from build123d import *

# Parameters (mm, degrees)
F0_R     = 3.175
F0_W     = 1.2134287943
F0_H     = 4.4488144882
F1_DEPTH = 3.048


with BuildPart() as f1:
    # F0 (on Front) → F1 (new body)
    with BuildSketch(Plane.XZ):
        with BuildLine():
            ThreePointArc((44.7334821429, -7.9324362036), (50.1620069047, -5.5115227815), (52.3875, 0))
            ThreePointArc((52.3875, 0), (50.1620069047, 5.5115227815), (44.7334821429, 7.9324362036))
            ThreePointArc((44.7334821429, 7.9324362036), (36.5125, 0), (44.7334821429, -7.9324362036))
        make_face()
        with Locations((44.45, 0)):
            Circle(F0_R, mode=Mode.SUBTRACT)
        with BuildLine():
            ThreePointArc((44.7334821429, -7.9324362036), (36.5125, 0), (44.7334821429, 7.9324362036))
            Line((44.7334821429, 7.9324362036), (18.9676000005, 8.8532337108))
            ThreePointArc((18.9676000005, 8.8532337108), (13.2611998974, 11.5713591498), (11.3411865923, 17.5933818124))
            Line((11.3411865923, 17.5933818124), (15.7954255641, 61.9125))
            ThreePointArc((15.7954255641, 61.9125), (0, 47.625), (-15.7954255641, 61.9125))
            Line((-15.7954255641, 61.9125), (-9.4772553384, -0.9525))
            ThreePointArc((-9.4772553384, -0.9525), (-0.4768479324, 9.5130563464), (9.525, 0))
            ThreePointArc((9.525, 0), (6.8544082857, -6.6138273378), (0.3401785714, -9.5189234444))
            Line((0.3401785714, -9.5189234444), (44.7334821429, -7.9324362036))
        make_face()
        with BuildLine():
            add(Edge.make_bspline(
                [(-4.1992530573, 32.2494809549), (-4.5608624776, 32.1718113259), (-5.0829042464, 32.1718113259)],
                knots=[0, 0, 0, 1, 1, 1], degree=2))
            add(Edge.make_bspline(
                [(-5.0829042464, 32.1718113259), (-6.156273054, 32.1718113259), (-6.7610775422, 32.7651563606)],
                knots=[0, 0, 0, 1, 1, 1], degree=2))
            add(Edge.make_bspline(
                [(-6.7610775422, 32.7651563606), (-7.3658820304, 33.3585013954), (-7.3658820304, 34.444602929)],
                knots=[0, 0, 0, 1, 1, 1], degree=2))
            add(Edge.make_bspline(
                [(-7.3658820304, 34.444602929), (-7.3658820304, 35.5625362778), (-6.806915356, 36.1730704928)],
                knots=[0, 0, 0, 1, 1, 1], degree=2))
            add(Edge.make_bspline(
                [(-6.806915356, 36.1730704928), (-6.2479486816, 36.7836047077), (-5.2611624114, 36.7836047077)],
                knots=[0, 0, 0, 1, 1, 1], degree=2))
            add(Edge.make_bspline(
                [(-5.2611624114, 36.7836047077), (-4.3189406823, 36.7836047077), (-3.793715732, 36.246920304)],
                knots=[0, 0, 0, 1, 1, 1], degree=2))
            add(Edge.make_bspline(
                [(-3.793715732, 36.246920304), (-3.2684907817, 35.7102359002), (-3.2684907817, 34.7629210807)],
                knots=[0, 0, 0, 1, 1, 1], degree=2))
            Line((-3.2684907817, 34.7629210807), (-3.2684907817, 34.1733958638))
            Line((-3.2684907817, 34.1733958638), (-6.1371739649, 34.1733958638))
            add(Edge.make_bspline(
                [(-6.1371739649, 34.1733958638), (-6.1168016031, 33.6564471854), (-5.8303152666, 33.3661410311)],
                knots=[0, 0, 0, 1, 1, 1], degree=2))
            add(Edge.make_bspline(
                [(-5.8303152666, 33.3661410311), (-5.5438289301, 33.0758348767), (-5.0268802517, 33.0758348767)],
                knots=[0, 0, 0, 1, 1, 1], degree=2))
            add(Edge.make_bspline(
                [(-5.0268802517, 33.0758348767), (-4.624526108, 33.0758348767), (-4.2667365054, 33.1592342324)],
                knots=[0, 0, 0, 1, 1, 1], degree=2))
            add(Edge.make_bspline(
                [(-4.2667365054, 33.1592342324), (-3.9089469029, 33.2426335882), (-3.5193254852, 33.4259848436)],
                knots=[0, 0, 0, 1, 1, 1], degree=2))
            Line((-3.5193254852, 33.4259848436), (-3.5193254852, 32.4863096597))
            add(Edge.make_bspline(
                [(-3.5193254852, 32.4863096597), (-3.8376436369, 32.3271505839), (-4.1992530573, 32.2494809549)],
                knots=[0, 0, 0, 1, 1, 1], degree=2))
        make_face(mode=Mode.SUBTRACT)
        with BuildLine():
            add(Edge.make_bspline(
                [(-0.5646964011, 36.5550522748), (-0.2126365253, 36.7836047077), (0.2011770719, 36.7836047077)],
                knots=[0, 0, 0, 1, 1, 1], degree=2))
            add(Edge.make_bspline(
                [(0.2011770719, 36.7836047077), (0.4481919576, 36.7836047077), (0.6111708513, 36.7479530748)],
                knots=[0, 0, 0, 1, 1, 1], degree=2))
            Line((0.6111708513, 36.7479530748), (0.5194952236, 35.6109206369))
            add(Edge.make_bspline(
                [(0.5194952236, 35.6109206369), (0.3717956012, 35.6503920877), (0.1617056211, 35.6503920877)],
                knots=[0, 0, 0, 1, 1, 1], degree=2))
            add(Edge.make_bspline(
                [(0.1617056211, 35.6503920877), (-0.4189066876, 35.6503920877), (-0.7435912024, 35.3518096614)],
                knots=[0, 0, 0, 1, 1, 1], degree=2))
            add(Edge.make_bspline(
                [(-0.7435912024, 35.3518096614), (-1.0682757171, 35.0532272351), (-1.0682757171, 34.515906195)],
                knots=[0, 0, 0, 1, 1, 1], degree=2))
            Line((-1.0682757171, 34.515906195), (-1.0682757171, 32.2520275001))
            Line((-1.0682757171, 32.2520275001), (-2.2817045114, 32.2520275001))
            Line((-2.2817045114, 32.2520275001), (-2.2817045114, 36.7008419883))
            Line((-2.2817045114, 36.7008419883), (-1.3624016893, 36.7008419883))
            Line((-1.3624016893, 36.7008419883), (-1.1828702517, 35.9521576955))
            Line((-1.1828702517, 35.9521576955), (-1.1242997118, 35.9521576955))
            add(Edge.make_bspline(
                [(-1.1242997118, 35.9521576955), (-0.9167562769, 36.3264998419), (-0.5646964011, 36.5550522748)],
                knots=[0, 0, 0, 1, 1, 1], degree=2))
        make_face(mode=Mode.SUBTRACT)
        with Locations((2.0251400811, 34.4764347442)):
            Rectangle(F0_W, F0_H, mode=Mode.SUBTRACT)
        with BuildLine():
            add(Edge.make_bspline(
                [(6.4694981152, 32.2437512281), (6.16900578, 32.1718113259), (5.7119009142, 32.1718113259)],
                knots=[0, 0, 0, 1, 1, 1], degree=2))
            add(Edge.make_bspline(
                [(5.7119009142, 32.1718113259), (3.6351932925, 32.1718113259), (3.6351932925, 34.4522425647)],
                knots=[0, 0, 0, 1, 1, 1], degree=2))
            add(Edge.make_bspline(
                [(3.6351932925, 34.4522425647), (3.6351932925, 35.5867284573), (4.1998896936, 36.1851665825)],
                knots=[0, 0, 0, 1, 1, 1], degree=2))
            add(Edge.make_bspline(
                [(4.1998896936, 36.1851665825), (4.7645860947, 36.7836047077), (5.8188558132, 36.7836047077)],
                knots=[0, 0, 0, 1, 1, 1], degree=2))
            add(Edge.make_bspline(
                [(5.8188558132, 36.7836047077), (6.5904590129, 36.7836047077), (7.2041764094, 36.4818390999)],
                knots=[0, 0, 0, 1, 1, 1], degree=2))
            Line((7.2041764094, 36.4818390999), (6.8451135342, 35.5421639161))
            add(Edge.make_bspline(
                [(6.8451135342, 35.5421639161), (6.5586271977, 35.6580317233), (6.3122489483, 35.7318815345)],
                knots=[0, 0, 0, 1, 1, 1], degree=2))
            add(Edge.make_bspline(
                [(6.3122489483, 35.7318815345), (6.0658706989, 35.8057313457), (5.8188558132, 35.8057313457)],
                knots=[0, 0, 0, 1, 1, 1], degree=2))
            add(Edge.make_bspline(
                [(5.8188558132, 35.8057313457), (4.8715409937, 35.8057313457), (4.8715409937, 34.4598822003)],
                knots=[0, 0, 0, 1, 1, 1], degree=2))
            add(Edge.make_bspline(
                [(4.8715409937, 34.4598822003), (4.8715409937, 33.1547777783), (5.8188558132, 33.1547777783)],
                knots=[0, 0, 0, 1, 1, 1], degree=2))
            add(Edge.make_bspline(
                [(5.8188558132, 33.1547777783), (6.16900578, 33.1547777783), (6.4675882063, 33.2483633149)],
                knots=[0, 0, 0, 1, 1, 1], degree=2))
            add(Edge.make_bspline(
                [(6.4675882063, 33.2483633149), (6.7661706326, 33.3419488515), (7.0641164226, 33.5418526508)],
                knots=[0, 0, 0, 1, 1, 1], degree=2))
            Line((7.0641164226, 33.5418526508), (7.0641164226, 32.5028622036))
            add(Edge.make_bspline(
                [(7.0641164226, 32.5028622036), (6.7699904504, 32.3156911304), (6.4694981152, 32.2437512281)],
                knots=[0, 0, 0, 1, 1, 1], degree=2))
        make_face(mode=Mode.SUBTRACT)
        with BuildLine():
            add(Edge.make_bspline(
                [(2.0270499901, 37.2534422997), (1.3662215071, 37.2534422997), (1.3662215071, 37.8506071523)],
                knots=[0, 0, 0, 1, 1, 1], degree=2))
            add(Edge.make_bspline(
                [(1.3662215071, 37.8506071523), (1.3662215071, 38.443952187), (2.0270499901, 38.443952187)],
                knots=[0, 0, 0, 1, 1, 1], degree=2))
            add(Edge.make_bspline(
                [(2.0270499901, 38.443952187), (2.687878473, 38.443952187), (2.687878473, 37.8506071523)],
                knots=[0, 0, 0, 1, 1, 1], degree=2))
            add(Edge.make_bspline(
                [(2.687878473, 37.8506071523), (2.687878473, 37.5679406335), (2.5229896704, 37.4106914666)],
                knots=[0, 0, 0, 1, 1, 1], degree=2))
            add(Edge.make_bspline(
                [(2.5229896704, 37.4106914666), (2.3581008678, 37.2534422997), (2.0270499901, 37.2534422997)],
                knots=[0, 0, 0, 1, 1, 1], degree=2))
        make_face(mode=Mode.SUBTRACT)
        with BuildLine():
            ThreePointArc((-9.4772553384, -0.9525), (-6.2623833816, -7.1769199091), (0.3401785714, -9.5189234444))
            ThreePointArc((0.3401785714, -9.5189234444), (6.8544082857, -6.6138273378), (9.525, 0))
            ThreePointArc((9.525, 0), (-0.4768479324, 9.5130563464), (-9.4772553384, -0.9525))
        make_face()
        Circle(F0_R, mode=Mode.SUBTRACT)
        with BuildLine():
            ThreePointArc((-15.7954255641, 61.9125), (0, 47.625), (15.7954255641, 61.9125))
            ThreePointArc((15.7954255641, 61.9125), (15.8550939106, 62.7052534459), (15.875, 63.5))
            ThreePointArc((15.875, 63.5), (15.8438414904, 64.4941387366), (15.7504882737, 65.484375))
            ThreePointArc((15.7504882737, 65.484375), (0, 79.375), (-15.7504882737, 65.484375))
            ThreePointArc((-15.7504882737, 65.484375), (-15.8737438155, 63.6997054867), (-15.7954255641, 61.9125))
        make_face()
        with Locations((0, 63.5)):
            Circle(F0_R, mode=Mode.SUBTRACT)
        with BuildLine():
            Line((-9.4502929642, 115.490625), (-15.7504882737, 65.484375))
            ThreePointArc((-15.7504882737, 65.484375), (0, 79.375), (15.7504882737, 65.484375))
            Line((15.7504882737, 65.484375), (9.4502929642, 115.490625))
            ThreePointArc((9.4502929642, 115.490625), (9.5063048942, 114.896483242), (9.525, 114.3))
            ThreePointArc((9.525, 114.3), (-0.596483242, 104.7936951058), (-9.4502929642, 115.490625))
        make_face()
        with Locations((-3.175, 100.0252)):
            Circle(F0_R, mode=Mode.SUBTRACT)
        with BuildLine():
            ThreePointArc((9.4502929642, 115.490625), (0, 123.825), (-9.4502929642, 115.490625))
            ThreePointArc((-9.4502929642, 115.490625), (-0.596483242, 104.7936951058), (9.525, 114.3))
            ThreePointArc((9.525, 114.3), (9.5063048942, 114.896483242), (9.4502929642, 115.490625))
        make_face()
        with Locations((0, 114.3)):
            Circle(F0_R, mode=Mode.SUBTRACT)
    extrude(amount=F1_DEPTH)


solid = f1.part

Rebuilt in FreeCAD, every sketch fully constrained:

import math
import FreeCAD as App
import Part
import Sketcher
Q = App.Units.Quantity


def add_polygon(sketch, points):
    """Adds a closed chain of lines whose ends are joined by coincident constraints."""
    first, n = sketch.GeometryCount, len(points)
    for a, b in zip(points, points[1:] + points[:1]):
        sketch.addGeometry(Part.LineSegment(App.Vector(*a, 0), App.Vector(*b, 0)), False)
    for i in range(n):
        sketch.addConstraint(Sketcher.Constraint("Coincident", first + i, 2, first + (i + 1) % n, 1))

doc = App.newDocument("Part")
body = doc.addObject("PartDesign::Body", "Body")

# Sketch on XZ plane
sketch1 = doc.addObject("Sketcher::SketchObject", "Sketch")
body.addObject(sketch1)
sketch1.AttachmentSupport = (doc.XZ_Plane, [""])
sketch1.MapMode = "FlatFace"
sketch1.addGeometry(Part.ArcOfCircle(Part.Circle(App.Vector(44.45, 0, 0), App.Vector(0, 0, 1), 7.9375), math.radians(-87.953287), math.radians(0)), False)  # 0
sketch1.addGeometry(Part.ArcOfCircle(Part.Circle(App.Vector(44.45, 0, 0), App.Vector(0, 0, 1), 7.9375), math.radians(0), math.radians(87.953287)), False)  # 1
sketch1.addGeometry(Part.LineSegment(App.Vector(44.733482, 7.932436, 0), App.Vector(18.9676, 8.853234, 0)), False)  # 2
sketch1.addGeometry(Part.ArcOfCircle(Part.Circle(App.Vector(19.251536, 16.798362, 0), App.Vector(0, 0, 1), 7.9502), math.radians(174.26083), math.radians(267.953287)), False)  # 3
sketch1.addGeometry(Part.LineSegment(App.Vector(11.341187, 17.593382, 0), App.Vector(15.795426, 61.9125, 0)), False)  # 4
sketch1.addGeometry(Part.ArcOfCircle(Part.Circle(App.Vector(0, 63.5, 0), App.Vector(0, 0, 1), 15.875), math.radians(-5.73917), math.radians(0)), False)  # 5
sketch1.addGeometry(Part.ArcOfCircle(Part.Circle(App.Vector(0, 63.5, 0), App.Vector(0, 0, 1), 15.875), math.radians(0), math.radians(7.180756)), False)  # 6
sketch1.addGeometry(Part.LineSegment(App.Vector(15.750488, 65.484375, 0), App.Vector(9.450293, 115.490625, 0)), False)  # 7
sketch1.addGeometry(Part.ArcOfCircle(Part.Circle(App.Vector(0, 114.3, 0), App.Vector(0, 0, 1), 9.525), math.radians(7.180756), math.radians(172.819244)), False)  # 8
sketch1.addGeometry(Part.LineSegment(App.Vector(-9.450293, 115.490625, 0), App.Vector(-15.750488, 65.484375, 0)), False)  # 9
sketch1.addGeometry(Part.ArcOfCircle(Part.Circle(App.Vector(0, 63.5, 0), App.Vector(0, 0, 1), 15.875), math.radians(172.819244), math.radians(185.73917)), False)  # 10
sketch1.addGeometry(Part.LineSegment(App.Vector(-15.795426, 61.9125, 0), App.Vector(-9.477255, -0.9525, 0)), False)  # 11
sketch1.addGeometry(Part.ArcOfCircle(Part.Circle(App.Vector(0, 0, 0), App.Vector(0, 0, 1), 9.525), math.radians(-174.26083), math.radians(-87.953287)), False)  # 12
sketch1.addGeometry(Part.LineSegment(App.Vector(0.340179, -9.518923, 0), App.Vector(44.733482, -7.932436, 0)), False)  # 13
sketch1.addGeometry(Part.Circle(App.Vector(0, 0, 0), App.Vector(0, 0, 1), 3.175), False)  # 14
sketch1.addGeometry(Part.BSplineCurve([App.Vector(-3.519325, 32.48631, 0), App.Vector(-3.837644, 32.327151, 0), App.Vector(-4.199253, 32.249481, 0)], [3, 3], [0, 1], False, 2, [1, 1, 1], False), False)  # 15
sketch1.addGeometry(Part.BSplineCurve([App.Vector(-4.199253, 32.249481, 0), App.Vector(-4.560862, 32.171811, 0), App.Vector(-6.156273, 32.171811, 0), App.Vector(-6.761078, 32.765156, 0)], [3, 1, 3], [0, 1, 3.056097561], False, 2, [1, 1, 1, 1], False), False)  # 16
sketch1.addGeometry(Part.BSplineCurve([App.Vector(-6.761078, 32.765156, 0), App.Vector(-7.365882, 33.358501, 0), App.Vector(-7.365882, 35.562536, 0), App.Vector(-6.806915, 36.17307, 0)], [3, 1, 3], [0, 1, 2.029308324], False, 2, [1, 1, 1, 1], False), False)  # 17
sketch1.addGeometry(Part.BSplineCurve([App.Vector(-6.806915, 36.17307, 0), App.Vector(-6.247949, 36.783605, 0), App.Vector(-4.318941, 36.783605, 0), App.Vector(-3.793716, 36.24692, 0)], [3, 1, 3], [0, 1, 1.95483871], False, 2, [1, 1, 1, 1], False), False)  # 18
sketch1.addGeometry(Part.BSplineCurve([App.Vector(-3.793716, 36.24692, 0), App.Vector(-3.268491, 35.710236, 0), App.Vector(-3.268491, 34.762921, 0)], [3, 3], [0, 1], False, 2, [1, 1, 1], False), False)  # 19
sketch1.addGeometry(Part.LineSegment(App.Vector(-3.268491, 34.762921, 0), App.Vector(-3.268491, 34.173396, 0)), False)  # 20
sketch1.addGeometry(Part.LineSegment(App.Vector(-3.268491, 34.173396, 0), App.Vector(-6.137174, 34.173396, 0)), False)  # 21
sketch1.addGeometry(Part.BSplineCurve([App.Vector(-6.137174, 34.173396, 0), App.Vector(-6.116802, 33.656447, 0), App.Vector(-5.830315, 33.366141, 0)], [3, 3], [0, 1], False, 2, [1, 1, 1], False), False)  # 22
sketch1.addGeometry(Part.BSplineCurve([App.Vector(-5.830315, 33.366141, 0), App.Vector(-5.543829, 33.075835, 0), App.Vector(-4.624526, 33.075835, 0), App.Vector(-4.266737, 33.159234, 0)], [3, 1, 3], [0, 1, 1.778325123], False, 2, [1, 1, 1, 1], False), False)  # 23
sketch1.addGeometry(Part.BSplineCurve([App.Vector(-4.266737, 33.159234, 0), App.Vector(-3.908947, 33.242634, 0), App.Vector(-3.519325, 33.425985, 0)], [3, 3], [0, 1], False, 2, [1, 1, 1], False), False)  # 24
sketch1.addGeometry(Part.LineSegment(App.Vector(-3.519325, 33.425985, 0), App.Vector(-3.519325, 32.48631, 0)), False)  # 25
sketch1.addGeometry(Part.BSplineCurve([App.Vector(-1.1243, 35.952158, 0), App.Vector(-0.916756, 36.3265, 0), App.Vector(-0.212637, 36.783605, 0), App.Vector(0.448192, 36.783605, 0), App.Vector(0.611171, 36.747953, 0)], [3, 1, 1, 3], [0, 1, 2, 2.596923077], False, 2, [1, 1, 1, 1, 1], False), False)  # 26
sketch1.addGeometry(Part.LineSegment(App.Vector(0.611171, 36.747953, 0), App.Vector(0.519495, 35.610921, 0)), False)  # 27
sketch1.addGeometry(Part.BSplineCurve([App.Vector(0.519495, 35.610921, 0), App.Vector(0.371796, 35.650392, 0), App.Vector(-0.418907, 35.650392, 0), App.Vector(-0.743591, 35.35181, 0)], [3, 1, 3], [0, 1, 3.763636364], False, 2, [1, 1, 1, 1], False), False)  # 28
sketch1.addGeometry(Part.BSplineCurve([App.Vector(-0.743591, 35.35181, 0), App.Vector(-1.068276, 35.053227, 0), App.Vector(-1.068276, 34.515906, 0)], [3, 3], [0, 1], False, 2, [1, 1, 1], False), False)  # 29
sketch1.addGeometry(Part.LineSegment(App.Vector(-1.068276, 34.515906, 0), App.Vector(-1.068276, 32.252027, 0)), False)  # 30
sketch1.addGeometry(Part.LineSegment(App.Vector(-1.068276, 32.252027, 0), App.Vector(-2.281705, 32.252027, 0)), False)  # 31
sketch1.addGeometry(Part.LineSegment(App.Vector(-2.281705, 32.252027, 0), App.Vector(-2.281705, 36.700842, 0)), False)  # 32
sketch1.addGeometry(Part.LineSegment(App.Vector(-2.281705, 36.700842, 0), App.Vector(-1.362402, 36.700842, 0)), False)  # 33
sketch1.addGeometry(Part.LineSegment(App.Vector(-1.362402, 36.700842, 0), App.Vector(-1.18287, 35.952158, 0)), False)  # 34
sketch1.addGeometry(Part.LineSegment(App.Vector(-1.18287, 35.952158, 0), App.Vector(-1.1243, 35.952158, 0)), False)  # 35
add_polygon(sketch1, [(2.631854, 32.252027), (1.418426, 32.252027), (1.418426, 36.700842), (2.631854, 36.700842)])  # lines 36-39
sketch1.addGeometry(Part.BSplineCurve([App.Vector(7.064116, 32.502862, 0), App.Vector(6.76999, 32.315691, 0), App.Vector(6.469498, 32.243751, 0)], [3, 3], [0, 1], False, 2, [1, 1, 1], False), False)  # 40
sketch1.addGeometry(Part.BSplineCurve([App.Vector(6.469498, 32.243751, 0), App.Vector(6.169006, 32.171811, 0), App.Vector(3.635193, 32.171811, 0), App.Vector(3.635193, 35.586728, 0), App.Vector(4.764586, 36.783605, 0), App.Vector(6.590459, 36.783605, 0), App.Vector(7.204176, 36.481839, 0)], [3, 1, 1, 1, 1, 3], [0, 1, 5.543175488, 7.803348218, 10.063520948, 11.717705337], False, 2, [1, 1, 1, 1, 1, 1, 1], False), False)  # 41
sketch1.addGeometry(Part.LineSegment(App.Vector(7.204176, 36.481839, 0), App.Vector(6.845114, 35.542164, 0)), False)  # 42
sketch1.addGeometry(Part.BSplineCurve([App.Vector(6.845114, 35.542164, 0), App.Vector(6.558627, 35.658032, 0), App.Vector(6.065871, 35.805731, 0), App.Vector(4.871541, 35.805731, 0), App.Vector(4.871541, 33.154778, 0), App.Vector(6.169006, 33.154778, 0), App.Vector(6.766171, 33.341949, 0), App.Vector(7.064116, 33.541853, 0)], [3, 1, 1, 1, 1, 1, 3], [0, 1, 2, 5.835051547, 9.553999357, 10.928610443, 12.303221528], False, 2, [1, 1, 1, 1, 1, 1, 1, 1], False), False)  # 43
sketch1.addGeometry(Part.LineSegment(App.Vector(7.064116, 33.541853, 0), App.Vector(7.064116, 32.502862, 0)), False)  # 44
sketch1.addGeometry(Part.BSplineCurve([App.Vector(2.52299, 37.410691, 0), App.Vector(2.358101, 37.253442, 0), App.Vector(1.366222, 37.253442, 0), App.Vector(1.366222, 38.443952, 0), App.Vector(2.687878, 38.443952, 0), App.Vector(2.687878, 37.567941, 0), App.Vector(2.52299, 37.410691, 0)], [3, 1, 1, 1, 1, 3], [0, 1, 2.996153847, 4.979539119, 6.96292439, 7.907798919], False, 2, [1, 1, 1, 1, 1, 1, 1], False), False)  # 45
sketch1.addGeometry(Part.Circle(App.Vector(44.45, 0, 0), App.Vector(0, 0, 1), 3.175), False)  # 46
sketch1.addGeometry(Part.Circle(App.Vector(0, 63.5, 0), App.Vector(0, 0, 1), 3.175), False)  # 47
sketch1.addGeometry(Part.Circle(App.Vector(-3.175, 100.0252, 0), App.Vector(0, 0, 1), 3.175), False)  # 48
sketch1.addGeometry(Part.Circle(App.Vector(0, 114.3, 0), App.Vector(0, 0, 1), 3.175), False)  # 49
sketch1.addConstraint([
    Sketcher.Constraint("Block", 15),
    Sketcher.Constraint("Block", 16),
    Sketcher.Constraint("Block", 17),
    Sketcher.Constraint("Block", 18),
    Sketcher.Constraint("Block", 19),
    Sketcher.Constraint("Block", 22),
    Sketcher.Constraint("Block", 23),
    Sketcher.Constraint("Block", 24),
    Sketcher.Constraint("Block", 26),
    Sketcher.Constraint("Block", 28),
    Sketcher.Constraint("Block", 29),
    Sketcher.Constraint("Block", 40),
    Sketcher.Constraint("Block", 41),
    Sketcher.Constraint("Block", 43),
    Sketcher.Constraint("Block", 45),
    Sketcher.Constraint("Tangent", 0, 2, 1, 1),
    Sketcher.Constraint("Tangent", 1, 2, 2, 1),
    Sketcher.Constraint("Tangent", 2, 2, 3, 2),
    Sketcher.Constraint("Tangent", 3, 1, 4, 1),
    Sketcher.Constraint("Tangent", 4, 2, 5, 1),
    Sketcher.Constraint("Tangent", 5, 2, 6, 1),
    Sketcher.Constraint("Tangent", 6, 2, 7, 1),
    Sketcher.Constraint("Tangent", 7, 2, 8, 1),
    Sketcher.Constraint("Tangent", 8, 2, 9, 1),
    Sketcher.Constraint("Tangent", 9, 2, 10, 1),
    Sketcher.Constraint("Tangent", 10, 2, 11, 1),
    Sketcher.Constraint("Tangent", 11, 2, 12, 1),
    Sketcher.Constraint("Tangent", 12, 2, 13, 1),
    Sketcher.Constraint("Tangent", 13, 2, 0, 1),
    Sketcher.Constraint("Coincident", 19, 2, 20, 1),
    Sketcher.Constraint("Coincident", 20, 2, 21, 1),
    Sketcher.Constraint("Coincident", 21, 2, 22, 1),
    Sketcher.Constraint("Coincident", 24, 2, 25, 1),
    Sketcher.Constraint("Coincident", 25, 2, 15, 1),
    Sketcher.Constraint("Coincident", 26, 2, 27, 1),
    Sketcher.Constraint("Coincident", 27, 2, 28, 1),
    Sketcher.Constraint("Coincident", 29, 2, 30, 1),
    Sketcher.Constraint("Coincident", 30, 2, 31, 1),
    Sketcher.Constraint("Coincident", 31, 2, 32, 1),
    Sketcher.Constraint("Coincident", 32, 2, 33, 1),
    Sketcher.Constraint("Coincident", 33, 2, 34, 1),
    Sketcher.Constraint("Coincident", 34, 2, 35, 1),
    Sketcher.Constraint("Coincident", 35, 2, 26, 1),
    Sketcher.Constraint("Coincident", 41, 2, 42, 1),
    Sketcher.Constraint("Coincident", 42, 2, 43, 1),
    Sketcher.Constraint("Coincident", 43, 2, 44, 1),
    Sketcher.Constraint("Coincident", 44, 2, 40, 1),
    Sketcher.Constraint("Vertical", 20),
    Sketcher.Constraint("Horizontal", 21),
    Sketcher.Constraint("Vertical", 30),
    Sketcher.Constraint("Horizontal", 31),
    Sketcher.Constraint("Vertical", 32),
    Sketcher.Constraint("Horizontal", 33),
    Sketcher.Constraint("Horizontal", 35),
    Sketcher.Constraint("Horizontal", 36),
    Sketcher.Constraint("Vertical", 37),
    Sketcher.Constraint("Horizontal", 38),
    Sketcher.Constraint("Vertical", 39),
    Sketcher.Constraint("Coincident", 12, 3, -1, 1),
    Sketcher.Constraint("Coincident", 14, 3, -1, 1),
    Sketcher.Constraint("Coincident", 10, 3, 5, 3),
    Sketcher.Constraint("Coincident", 46, 3, 0, 3),
    Sketcher.Constraint("Coincident", 47, 3, 5, 3),
    Sketcher.Constraint("Coincident", 49, 3, 8, 3),
    Sketcher.Constraint("Equal", 0, 1),
    Sketcher.Constraint("Equal", 5, 6),
    Sketcher.Constraint("Equal", 6, 10),
    Sketcher.Constraint("Equal", 8, 12),
    Sketcher.Constraint("Equal", 14, 46),
    Sketcher.Constraint("Equal", 46, 47),
    Sketcher.Constraint("Equal", 47, 48),
    Sketcher.Constraint("Equal", 48, 49),
    Sketcher.Constraint("Symmetric", 7, 2, 8, 2, -2),
    Sketcher.Constraint("Symmetric", 1, 2, 13, 2, -1),
    Sketcher.Constraint("PointOnObject", 0, 2, -1),
    Sketcher.Constraint("Horizontal", 47, 3, 5, 2),
    Sketcher.Constraint("Horizontal", 4, 2, 10, 2),
    Sketcher.Constraint("Horizontal", 31, 2, 36, 2),
    Sketcher.Constraint("Horizontal", 33, 2, 37, 2),
    Sketcher.Constraint("Equal", 31, 36),
    Sketcher.Constraint("Diameter", 14, Q("0.25 in")),
    Sketcher.Constraint("Radius", 0, Q("0.3125 in")),
    Sketcher.Constraint("Radius", 3, Q("0.313 in")),
    Sketcher.Constraint("Radius", 5, Q("0.625 in")),
    Sketcher.Constraint("Radius", 8, Q("0.375 in")),
    Sketcher.Constraint("DistanceY", 5, 3, 8, 3, Q("2 in")),
    Sketcher.Constraint("DistanceY", -1, 1, 5, 3, Q("2.5 in")),
    Sketcher.Constraint("DistanceX", -1, 1, 0, 3, Q("1.75 in")),
    Sketcher.Constraint("DistanceX", 48, 3, -1, 1, Q("0.125 in")),
    Sketcher.Constraint("DistanceY", -1, 1, 48, 3, Q("3.938 in")),
    Sketcher.Constraint("DistanceX", 31, 2, 31, 1, 1.213429),
    Sketcher.Constraint("DistanceX", 35, 1, 35, 2, 0.058571),
    Sketcher.Constraint("DistanceY", 30, 2, 30, 1, 2.263879),
    Sketcher.Constraint("DistanceX", 33, 2, -1, 1, 1.362402),
    Sketcher.Constraint("DistanceX", 30, 2, 36, 2, 2.486701),
    Sketcher.Constraint("Distance", 34, 0.769909),
])
pad1 = doc.addObject("PartDesign::Pad", "Pad")
body.addObject(pad1)
pad1.Profile = sketch1
pad1.Length = Q("0.12 in")

doc.recompute()
